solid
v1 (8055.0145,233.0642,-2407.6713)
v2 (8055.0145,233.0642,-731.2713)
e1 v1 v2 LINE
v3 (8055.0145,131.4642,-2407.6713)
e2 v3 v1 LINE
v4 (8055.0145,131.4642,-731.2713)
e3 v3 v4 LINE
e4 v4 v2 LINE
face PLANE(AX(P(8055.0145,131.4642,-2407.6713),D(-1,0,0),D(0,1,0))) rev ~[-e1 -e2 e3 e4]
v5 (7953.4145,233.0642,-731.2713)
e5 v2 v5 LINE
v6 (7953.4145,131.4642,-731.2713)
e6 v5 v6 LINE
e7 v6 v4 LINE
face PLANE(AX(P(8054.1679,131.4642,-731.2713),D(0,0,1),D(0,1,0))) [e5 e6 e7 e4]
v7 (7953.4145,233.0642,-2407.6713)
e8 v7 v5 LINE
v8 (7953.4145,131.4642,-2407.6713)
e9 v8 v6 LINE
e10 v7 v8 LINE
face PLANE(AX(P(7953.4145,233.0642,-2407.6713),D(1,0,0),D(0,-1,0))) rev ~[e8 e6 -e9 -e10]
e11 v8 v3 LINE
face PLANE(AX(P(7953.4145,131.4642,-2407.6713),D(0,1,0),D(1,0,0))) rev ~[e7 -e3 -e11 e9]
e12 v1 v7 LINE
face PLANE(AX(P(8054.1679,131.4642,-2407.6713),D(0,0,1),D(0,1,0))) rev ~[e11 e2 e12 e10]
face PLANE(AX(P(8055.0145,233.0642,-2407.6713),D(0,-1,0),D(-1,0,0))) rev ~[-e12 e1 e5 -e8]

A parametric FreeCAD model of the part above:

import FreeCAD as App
import Part
import Sketcher
from FreeCAD import Vector
Q = App.Units.Quantity

doc = App.newDocument("Part")
body = doc.addObject("PartDesign::Body", "Body")

sketch1 = body.newObject("Sketcher::SketchObject", "Sketch")
sketch1.AttachmentSupport = (doc.getObject("XY_Plane"), [""])
sketch1.MapMode = "FlatFace"
sketch1.AttachmentOffset = App.Placement(Vector(0, 0, -94.7902087 * 25.4), App.Rotation())
sketch1.addGeometry(Part.LineSegment(Vector(7953, 131, 0), Vector(8055, 131, 0)), False)
sketch1.addGeometry(Part.LineSegment(Vector(8055, 131, 0), Vector(8055, 233, 0)), False)
sketch1.addGeometry(Part.LineSegment(Vector(8055, 233, 0), Vector(7953, 233, 0)), False)
sketch1.addGeometry(Part.LineSegment(Vector(7953, 233, 0), Vector(7953, 131, 0)), False)
sketch1.addConstraint(Sketcher.Constraint("Coincident", 0, 2, 1, 1))
sketch1.addConstraint(Sketcher.Constraint("Coincident", 1, 2, 2, 1))
sketch1.addConstraint(Sketcher.Constraint("Coincident", 2, 2, 3, 1))
sketch1.addConstraint(Sketcher.Constraint("Coincident", 3, 2, 0, 1))
sketch1.addConstraint(Sketcher.Constraint("Horizontal", 0))
sketch1.addConstraint(Sketcher.Constraint("Vertical", 1))
sketch1.addConstraint(Sketcher.Constraint("Horizontal", 2))
sketch1.addConstraint(Sketcher.Constraint("Vertical", 3))
sketch1.addConstraint(Sketcher.Constraint("Equal", 2, 1))
sketch1.addConstraint(Sketcher.Constraint("DistanceX", 0, 1, 0, 2, Q("4 in")))
sketch1.addConstraint(Sketcher.Constraint("DistanceX", -1, 1, 0, 2, 8055.0145))
sketch1.addConstraint(Sketcher.Constraint("DistanceY", -1, 1, 0, 2, 131.4642))
pad1 = body.newObject("PartDesign::Pad", "Pad")
pad1.Profile = sketch1
pad1.Length = Q("66 in")

doc.recompute()
